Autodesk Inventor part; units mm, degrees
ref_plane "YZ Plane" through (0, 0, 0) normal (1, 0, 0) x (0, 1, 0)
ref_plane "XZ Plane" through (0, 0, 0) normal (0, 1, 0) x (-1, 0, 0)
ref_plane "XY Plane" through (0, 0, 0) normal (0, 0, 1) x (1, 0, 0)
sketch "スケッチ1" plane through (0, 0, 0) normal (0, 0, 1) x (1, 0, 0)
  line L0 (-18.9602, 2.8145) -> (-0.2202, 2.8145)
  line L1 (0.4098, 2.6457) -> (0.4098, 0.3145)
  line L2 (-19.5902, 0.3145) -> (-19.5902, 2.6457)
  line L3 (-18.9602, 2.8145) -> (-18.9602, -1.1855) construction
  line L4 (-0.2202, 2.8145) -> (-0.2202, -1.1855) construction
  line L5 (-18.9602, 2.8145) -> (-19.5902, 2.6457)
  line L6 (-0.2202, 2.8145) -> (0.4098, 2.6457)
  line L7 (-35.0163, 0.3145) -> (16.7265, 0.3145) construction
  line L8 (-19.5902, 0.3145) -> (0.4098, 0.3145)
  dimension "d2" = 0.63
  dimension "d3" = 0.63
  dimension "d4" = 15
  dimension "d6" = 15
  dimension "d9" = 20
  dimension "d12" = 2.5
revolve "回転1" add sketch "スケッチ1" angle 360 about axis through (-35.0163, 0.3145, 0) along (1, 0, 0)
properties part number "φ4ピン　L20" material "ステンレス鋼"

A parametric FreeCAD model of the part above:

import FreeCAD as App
import Part
import Sketcher

V = App.Vector
Q = App.Units.Quantity


def add_polygon(sketch, points):
    """Adds a closed chain of lines whose ends are joined by coincident constraints."""
    first, n = sketch.GeometryCount, len(points)
    for a, b in zip(points, points[1:] + points[:1]):
        sketch.addGeometry(Part.LineSegment(App.Vector(*a, 0), App.Vector(*b, 0)), False)
    for i in range(n):
        sketch.addConstraint(Sketcher.Constraint("Coincident", first + i, 2, first + (i + 1) % n, 1))

doc = App.newDocument("Part")
body = doc.addObject("PartDesign::Body", "Body")

# Sketch on XY plane
sketch1 = body.newObject("Sketcher::SketchObject", "Sketch")
sketch1.AttachmentSupport = (doc.getObject("XY_Plane"), [""])
sketch1.MapMode = "FlatFace"
add_polygon(sketch1, [(-0.2, 2.8), (-19, 2.8), (-19.6, 2.6), (-19.6, 0.3), (0.4, 0.3), (0.4, 2.6)])  # lines 0-5
sketch1.addGeometry(Part.LineSegment(V(-19.6, 0.3, 0), V(0.4, 0.3, 0)), True)  # axis
sketch1.addConstraint(Sketcher.Constraint("Horizontal", 0))
sketch1.addConstraint(Sketcher.Constraint("Vertical", 2))
sketch1.addConstraint(Sketcher.Constraint("Horizontal", 3))
sketch1.addConstraint(Sketcher.Constraint("Vertical", 4))
sketch1.addConstraint(Sketcher.Constraint("Horizontal", 6))
sketch1.addConstraint(Sketcher.Constraint("Coincident", 6, 1, 2, 2))
sketch1.addConstraint(Sketcher.Constraint("Horizontal", 1, 2, 4, 2))
sketch1.addConstraint(Sketcher.Constraint("Vertical", 4, 2, 6, 2))
sketch1.addConstraint(Sketcher.Constraint("Equal", 1, 5))
sketch1.addConstraint(Sketcher.Constraint("DistanceX", 3, 1, 3, 2, Q("20 mm")))
sketch1.addConstraint(Sketcher.Constraint("DistanceY", 2, 2, 0, 2, Q("2.5 mm")))
sketch1.addConstraint(Sketcher.Constraint("Angle", 1, Q("-165.0007 deg")))
sketch1.addConstraint(Sketcher.Constraint("DistanceX", 1, 2, 0, 2, Q("0.63 mm")))
sketch1.addConstraint(Sketcher.Constraint("DistanceX", 0, 2, -1, 1, Q("18.9602 mm")))
sketch1.addConstraint(Sketcher.Constraint("DistanceY", -1, 1, 0, 2, Q("2.8145 mm")))
revolution = body.newObject("PartDesign::Revolution", "Revolution")
revolution.Profile = sketch1
revolution.ReferenceAxis = (sketch1, ["Axis0"])
revolution.Angle = 360

doc.recompute()
